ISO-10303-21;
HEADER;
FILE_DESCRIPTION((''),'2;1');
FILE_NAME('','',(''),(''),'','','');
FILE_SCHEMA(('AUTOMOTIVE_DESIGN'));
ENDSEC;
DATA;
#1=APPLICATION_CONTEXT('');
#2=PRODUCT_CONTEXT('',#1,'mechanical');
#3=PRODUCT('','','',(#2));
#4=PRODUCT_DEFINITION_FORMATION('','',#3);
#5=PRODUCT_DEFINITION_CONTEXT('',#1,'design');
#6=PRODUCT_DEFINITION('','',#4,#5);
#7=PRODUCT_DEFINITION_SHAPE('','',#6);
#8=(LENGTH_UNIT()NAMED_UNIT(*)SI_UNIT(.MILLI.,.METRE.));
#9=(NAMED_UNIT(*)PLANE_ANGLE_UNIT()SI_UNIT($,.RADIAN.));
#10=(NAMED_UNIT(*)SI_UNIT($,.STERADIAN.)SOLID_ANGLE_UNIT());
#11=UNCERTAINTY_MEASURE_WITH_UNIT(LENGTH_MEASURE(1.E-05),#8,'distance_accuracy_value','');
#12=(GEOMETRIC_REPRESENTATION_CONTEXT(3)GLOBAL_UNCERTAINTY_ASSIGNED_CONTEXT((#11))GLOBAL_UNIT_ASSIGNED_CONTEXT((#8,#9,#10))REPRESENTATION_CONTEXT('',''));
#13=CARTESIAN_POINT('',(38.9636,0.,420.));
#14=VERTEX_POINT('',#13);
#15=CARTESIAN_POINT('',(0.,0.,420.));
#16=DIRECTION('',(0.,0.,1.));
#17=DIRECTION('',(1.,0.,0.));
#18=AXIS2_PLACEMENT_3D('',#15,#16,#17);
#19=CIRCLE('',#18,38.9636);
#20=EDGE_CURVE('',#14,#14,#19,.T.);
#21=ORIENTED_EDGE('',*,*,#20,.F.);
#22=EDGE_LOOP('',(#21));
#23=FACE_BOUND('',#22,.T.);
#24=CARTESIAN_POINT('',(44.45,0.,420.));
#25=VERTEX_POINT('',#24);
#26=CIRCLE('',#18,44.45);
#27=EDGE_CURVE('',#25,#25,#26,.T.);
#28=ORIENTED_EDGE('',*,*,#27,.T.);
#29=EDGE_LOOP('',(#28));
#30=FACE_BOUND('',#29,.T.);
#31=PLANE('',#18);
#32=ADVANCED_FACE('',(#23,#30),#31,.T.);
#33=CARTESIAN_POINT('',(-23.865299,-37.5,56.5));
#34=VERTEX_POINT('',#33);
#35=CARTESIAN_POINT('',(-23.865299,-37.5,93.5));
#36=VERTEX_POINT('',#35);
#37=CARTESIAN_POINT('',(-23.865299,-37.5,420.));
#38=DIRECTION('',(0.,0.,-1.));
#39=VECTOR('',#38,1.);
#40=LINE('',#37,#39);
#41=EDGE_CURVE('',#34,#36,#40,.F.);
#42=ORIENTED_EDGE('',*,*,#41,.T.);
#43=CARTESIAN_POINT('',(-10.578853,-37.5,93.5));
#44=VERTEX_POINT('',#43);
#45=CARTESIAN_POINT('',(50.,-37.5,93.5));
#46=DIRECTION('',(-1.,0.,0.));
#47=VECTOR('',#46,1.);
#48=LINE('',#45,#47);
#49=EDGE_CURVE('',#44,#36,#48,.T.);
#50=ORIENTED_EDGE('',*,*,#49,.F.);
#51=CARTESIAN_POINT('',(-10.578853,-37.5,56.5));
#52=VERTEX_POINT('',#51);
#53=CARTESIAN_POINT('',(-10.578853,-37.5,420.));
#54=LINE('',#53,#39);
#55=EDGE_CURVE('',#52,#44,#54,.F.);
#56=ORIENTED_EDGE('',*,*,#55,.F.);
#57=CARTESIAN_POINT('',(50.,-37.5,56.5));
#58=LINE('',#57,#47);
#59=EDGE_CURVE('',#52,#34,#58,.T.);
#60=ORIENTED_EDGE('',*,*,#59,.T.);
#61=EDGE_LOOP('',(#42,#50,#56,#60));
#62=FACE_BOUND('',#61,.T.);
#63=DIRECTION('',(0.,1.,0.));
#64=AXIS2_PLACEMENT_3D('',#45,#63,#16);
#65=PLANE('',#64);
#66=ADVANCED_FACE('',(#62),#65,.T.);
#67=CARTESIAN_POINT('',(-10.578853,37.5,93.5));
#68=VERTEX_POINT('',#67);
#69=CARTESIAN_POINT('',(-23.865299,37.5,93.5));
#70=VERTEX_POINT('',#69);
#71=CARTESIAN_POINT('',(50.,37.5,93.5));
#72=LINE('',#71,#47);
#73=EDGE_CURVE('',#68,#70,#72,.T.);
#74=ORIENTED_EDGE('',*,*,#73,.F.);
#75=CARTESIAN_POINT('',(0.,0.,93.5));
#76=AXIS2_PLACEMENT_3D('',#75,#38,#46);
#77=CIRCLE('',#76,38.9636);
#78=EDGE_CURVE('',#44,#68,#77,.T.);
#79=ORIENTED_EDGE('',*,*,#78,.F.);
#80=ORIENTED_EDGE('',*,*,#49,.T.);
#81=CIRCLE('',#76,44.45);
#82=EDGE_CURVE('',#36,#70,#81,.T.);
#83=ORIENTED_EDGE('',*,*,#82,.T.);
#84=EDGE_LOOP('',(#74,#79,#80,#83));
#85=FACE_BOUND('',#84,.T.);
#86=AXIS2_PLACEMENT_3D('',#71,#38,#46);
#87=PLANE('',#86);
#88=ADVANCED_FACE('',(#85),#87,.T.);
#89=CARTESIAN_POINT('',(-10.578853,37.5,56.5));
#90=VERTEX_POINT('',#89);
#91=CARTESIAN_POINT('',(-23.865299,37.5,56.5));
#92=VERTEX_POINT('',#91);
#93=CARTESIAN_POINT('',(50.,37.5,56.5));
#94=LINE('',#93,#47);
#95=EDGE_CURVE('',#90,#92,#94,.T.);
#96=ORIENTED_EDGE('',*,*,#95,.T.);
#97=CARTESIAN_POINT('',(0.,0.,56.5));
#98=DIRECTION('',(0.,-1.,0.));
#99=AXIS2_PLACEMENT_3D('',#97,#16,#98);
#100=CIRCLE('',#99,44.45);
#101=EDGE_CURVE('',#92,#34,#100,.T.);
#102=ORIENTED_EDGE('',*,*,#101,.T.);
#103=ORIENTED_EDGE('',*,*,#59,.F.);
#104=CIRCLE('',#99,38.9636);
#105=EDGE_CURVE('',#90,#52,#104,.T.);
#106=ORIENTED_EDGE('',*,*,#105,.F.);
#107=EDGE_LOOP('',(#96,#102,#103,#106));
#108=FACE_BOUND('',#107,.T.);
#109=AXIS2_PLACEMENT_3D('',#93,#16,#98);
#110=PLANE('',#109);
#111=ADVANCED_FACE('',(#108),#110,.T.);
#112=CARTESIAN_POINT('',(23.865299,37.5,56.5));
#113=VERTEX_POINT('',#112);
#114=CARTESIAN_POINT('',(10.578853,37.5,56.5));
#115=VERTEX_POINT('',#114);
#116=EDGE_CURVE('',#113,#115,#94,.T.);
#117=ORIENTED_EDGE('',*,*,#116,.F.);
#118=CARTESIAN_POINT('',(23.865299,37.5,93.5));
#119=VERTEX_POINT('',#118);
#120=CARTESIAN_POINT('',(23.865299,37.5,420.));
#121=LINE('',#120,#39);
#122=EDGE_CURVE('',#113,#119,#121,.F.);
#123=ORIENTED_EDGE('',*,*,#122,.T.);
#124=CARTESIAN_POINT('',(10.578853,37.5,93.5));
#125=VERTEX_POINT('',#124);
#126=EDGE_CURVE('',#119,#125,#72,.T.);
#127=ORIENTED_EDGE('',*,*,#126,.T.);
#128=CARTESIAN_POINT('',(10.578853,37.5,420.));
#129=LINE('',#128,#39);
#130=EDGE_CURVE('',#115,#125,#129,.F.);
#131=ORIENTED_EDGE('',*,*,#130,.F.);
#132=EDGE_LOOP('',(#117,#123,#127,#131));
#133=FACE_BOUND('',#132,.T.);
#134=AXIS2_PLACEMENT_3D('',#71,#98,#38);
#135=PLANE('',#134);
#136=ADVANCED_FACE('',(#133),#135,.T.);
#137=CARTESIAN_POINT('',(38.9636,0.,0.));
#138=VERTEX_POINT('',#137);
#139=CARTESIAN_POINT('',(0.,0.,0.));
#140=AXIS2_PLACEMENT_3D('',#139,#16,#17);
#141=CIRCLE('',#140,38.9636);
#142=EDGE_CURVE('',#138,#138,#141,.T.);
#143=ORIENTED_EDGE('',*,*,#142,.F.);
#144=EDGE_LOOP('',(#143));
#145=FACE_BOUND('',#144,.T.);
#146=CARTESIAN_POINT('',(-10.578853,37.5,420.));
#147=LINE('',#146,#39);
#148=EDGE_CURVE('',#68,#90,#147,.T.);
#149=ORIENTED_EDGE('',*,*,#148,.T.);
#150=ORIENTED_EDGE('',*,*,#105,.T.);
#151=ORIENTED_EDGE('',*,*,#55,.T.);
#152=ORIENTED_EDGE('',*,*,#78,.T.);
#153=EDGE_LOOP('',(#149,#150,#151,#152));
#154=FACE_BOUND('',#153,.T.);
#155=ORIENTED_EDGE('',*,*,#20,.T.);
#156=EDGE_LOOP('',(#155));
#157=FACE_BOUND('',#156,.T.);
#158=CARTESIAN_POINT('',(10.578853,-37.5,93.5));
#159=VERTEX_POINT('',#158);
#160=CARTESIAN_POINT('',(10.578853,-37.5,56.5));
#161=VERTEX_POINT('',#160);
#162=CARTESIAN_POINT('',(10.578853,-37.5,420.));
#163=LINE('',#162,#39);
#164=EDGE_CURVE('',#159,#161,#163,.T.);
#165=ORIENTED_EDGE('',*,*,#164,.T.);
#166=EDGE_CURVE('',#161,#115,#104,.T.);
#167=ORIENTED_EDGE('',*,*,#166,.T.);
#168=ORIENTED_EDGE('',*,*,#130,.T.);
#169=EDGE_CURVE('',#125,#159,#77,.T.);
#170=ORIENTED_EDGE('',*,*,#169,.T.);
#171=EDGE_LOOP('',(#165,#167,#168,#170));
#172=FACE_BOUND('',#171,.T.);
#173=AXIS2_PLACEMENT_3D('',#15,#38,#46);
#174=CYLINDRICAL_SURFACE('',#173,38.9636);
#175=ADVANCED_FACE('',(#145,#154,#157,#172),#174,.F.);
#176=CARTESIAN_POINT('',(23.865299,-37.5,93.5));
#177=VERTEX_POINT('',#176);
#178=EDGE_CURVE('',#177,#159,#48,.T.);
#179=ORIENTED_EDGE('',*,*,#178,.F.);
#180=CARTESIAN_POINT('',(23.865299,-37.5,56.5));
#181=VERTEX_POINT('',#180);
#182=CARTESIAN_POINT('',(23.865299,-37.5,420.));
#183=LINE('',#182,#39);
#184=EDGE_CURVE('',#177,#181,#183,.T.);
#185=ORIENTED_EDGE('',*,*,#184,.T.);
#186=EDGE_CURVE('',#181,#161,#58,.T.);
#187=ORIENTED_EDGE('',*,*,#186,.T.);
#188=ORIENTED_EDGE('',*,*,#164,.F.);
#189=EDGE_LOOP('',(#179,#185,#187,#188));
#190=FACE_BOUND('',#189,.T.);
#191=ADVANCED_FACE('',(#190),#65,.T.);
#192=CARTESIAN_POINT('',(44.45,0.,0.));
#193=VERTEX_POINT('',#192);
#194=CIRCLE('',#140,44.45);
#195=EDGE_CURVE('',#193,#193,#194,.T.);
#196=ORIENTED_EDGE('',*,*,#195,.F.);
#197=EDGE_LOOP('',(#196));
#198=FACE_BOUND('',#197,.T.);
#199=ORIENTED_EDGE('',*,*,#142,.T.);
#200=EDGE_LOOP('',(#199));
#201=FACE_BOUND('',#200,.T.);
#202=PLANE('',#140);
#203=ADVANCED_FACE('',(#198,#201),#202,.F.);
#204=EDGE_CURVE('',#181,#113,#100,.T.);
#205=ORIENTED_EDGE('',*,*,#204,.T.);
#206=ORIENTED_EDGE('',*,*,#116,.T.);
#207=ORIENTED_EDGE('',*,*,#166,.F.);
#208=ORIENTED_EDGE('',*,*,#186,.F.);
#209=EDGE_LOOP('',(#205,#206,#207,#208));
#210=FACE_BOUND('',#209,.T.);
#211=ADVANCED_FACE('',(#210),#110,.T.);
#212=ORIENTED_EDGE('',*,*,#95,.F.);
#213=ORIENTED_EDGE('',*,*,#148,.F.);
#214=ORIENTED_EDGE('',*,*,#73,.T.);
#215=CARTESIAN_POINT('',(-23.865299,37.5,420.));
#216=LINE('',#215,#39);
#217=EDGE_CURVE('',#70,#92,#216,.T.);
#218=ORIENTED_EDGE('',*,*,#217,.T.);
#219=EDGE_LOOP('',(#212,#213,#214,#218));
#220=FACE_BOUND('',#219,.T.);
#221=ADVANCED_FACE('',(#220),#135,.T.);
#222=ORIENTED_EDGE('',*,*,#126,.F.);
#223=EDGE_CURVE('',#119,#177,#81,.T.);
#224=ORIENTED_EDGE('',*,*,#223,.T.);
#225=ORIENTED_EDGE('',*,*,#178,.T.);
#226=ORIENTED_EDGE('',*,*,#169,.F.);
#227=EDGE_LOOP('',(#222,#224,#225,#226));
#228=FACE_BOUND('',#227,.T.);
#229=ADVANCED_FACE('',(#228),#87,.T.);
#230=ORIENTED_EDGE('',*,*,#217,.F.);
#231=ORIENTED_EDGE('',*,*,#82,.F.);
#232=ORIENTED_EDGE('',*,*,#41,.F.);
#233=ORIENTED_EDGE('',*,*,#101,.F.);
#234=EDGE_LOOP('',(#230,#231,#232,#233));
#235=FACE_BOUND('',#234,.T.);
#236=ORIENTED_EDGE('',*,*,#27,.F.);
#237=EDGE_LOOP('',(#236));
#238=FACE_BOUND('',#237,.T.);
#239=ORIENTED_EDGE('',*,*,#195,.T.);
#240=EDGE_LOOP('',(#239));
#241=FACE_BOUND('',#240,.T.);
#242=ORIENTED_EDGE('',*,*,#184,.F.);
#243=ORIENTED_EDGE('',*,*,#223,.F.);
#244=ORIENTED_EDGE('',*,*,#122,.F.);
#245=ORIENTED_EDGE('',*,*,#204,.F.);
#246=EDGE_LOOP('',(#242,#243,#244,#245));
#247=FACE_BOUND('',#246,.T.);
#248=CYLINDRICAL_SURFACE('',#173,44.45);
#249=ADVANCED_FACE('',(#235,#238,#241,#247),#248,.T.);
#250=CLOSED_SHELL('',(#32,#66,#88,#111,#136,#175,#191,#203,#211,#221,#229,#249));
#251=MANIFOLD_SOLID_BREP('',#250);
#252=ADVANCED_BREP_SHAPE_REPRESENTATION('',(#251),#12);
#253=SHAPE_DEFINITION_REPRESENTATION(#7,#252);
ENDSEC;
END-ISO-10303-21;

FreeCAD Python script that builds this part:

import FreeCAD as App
import Part
import Sketcher

V = App.Vector

doc = App.newDocument("Part")
body = doc.addObject("PartDesign::Body", "Body")

sketch1 = doc.addObject("Sketcher::SketchObject", "Sketch")
body.addObject(sketch1)
sketch1.AttachmentSupport = (doc.XY_Plane, [""])
sketch1.MapMode = "FlatFace"
sketch1.addGeometry(Part.Circle(V(0, 0, 0), V(0, 0, 1), 44), False)
sketch1.addGeometry(Part.Circle(V(0, 0, 0), V(0, 0, 1), 39), False)
sketch1.addConstraint(Sketcher.Constraint("Coincident", 0, 3, -1, 1))
sketch1.addConstraint(Sketcher.Constraint("Coincident", 1, 3, -1, 1))
sketch1.addConstraint(Sketcher.Constraint("Diameter", 0, 88.9))
sketch1.addConstraint(Sketcher.Constraint("Diameter", 1, 77.9272))
pad1 = doc.addObject("PartDesign::Pad", "Pad")
body.addObject(pad1)
pad1.Profile = sketch1
pad1.Length = 420

sketch2 = doc.addObject("Sketcher::SketchObject", "Sketch001")
body.addObject(sketch2)
sketch2.AttachmentSupport = (doc.YZ_Plane, [""])
sketch2.MapMode = "FlatFace"
sketch2.addGeometry(Part.LineSegment(V(38, 94, 0), V(-38, 94, 0)), False)
sketch2.addGeometry(Part.LineSegment(V(-38, 94, 0), V(-38, 56, 0)), False)
sketch2.addGeometry(Part.LineSegment(V(-38, 56, 0), V(38, 56, 0)), False)
sketch2.addGeometry(Part.LineSegment(V(38, 56, 0), V(38, 94, 0)), False)
sketch2.addConstraint(Sketcher.Constraint("Coincident", 0, 2, 1, 1))
sketch2.addConstraint(Sketcher.Constraint("Coincident", 1, 2, 2, 1))
sketch2.addConstraint(Sketcher.Constraint("Coincident", 2, 2, 3, 1))
sketch2.addConstraint(Sketcher.Constraint("Coincident", 3, 2, 0, 1))
sketch2.addConstraint(Sketcher.Constraint("Horizontal", 0))
sketch2.addConstraint(Sketcher.Constraint("Vertical", 1))
sketch2.addConstraint(Sketcher.Constraint("Horizontal", 2))
sketch2.addConstraint(Sketcher.Constraint("Vertical", 3))
sketch2.addConstraint(Sketcher.Constraint("DistanceX", 0, 2, 0, 1, 75.0))
sketch2.addConstraint(Sketcher.Constraint("DistanceY", 1, 2, 1, 1, 37.0))
sketch2.addConstraint(Sketcher.Constraint("DistanceX", 0, 2, -1, 1, 37.5))
sketch2.addConstraint(Sketcher.Constraint("DistanceY", -1, 1, 0, 2, 93.5))
pocket1 = doc.addObject("PartDesign::Pocket", "Pocket")
body.addObject(pocket1)
pocket1.Profile = sketch2
pocket1.Type = "ThroughAll"
pocket1.Midplane = True

doc.recompute()
